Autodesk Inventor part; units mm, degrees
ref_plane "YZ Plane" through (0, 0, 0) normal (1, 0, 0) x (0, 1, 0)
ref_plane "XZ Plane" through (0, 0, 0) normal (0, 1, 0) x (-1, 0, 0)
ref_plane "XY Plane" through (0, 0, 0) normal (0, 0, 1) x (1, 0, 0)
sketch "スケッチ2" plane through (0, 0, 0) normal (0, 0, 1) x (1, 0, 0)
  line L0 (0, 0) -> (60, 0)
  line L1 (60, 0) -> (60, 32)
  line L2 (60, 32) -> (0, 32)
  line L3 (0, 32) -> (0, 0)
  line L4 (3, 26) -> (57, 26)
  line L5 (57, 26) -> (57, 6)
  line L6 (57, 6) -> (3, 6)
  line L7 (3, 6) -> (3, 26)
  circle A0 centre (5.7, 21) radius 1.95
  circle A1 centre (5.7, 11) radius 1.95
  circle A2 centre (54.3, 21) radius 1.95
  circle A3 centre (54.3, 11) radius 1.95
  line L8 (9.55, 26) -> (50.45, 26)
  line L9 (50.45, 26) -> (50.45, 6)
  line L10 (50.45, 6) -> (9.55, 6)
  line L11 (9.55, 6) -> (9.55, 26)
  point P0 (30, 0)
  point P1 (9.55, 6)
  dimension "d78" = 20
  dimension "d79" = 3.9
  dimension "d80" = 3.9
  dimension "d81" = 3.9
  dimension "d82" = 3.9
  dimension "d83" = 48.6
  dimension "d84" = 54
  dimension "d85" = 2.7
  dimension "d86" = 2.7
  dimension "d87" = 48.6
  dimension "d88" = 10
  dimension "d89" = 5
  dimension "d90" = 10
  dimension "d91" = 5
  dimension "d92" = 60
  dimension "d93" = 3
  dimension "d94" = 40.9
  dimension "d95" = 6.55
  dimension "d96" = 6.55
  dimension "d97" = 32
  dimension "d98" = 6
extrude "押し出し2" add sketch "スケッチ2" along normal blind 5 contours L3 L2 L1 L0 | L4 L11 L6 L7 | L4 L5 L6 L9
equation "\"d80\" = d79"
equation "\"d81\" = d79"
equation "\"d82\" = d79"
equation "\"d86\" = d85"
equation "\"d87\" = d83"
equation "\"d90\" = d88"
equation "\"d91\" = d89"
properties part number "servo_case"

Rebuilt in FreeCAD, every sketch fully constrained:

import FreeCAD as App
import Part
import Sketcher

doc = App.newDocument("Part")
body = doc.addObject("PartDesign::Body", "Body")

sketch1 = body.newObject("Sketcher::SketchObject", "Sketch")
sketch1.AttachmentSupport = (doc.getObject("XY_Plane"), [""])
sketch1.MapMode = "FlatFace"
sketch1.addGeometry([
    Part.LineSegment(App.Vector(0, 32, 0), App.Vector(0, 0, 0)),
    Part.LineSegment(App.Vector(0, 0, 0), App.Vector(60, 0, 0)),
    Part.LineSegment(App.Vector(60, 0, 0), App.Vector(60, 32, 0)),
    Part.LineSegment(App.Vector(60, 32, 0), App.Vector(0, 32, 0)),
    Part.LineSegment(App.Vector(50.45, 6, 0), App.Vector(9.55, 6, 0)),
    Part.LineSegment(App.Vector(9.55, 6, 0), App.Vector(9.55, 26, 0)),
    Part.LineSegment(App.Vector(9.55, 26, 0), App.Vector(50.45, 26, 0)),
    Part.LineSegment(App.Vector(50.45, 26, 0), App.Vector(50.45, 6, 0)),
    Part.Circle(App.Vector(5.7, 21, 0), App.Vector(0, 0, 1), 1.95),
    Part.Circle(App.Vector(5.7, 11, 0), App.Vector(0, 0, 1), 1.95),
    Part.Circle(App.Vector(54.3, 11, 0), App.Vector(0, 0, 1), 1.95),
    Part.Circle(App.Vector(54.3, 21, 0), App.Vector(0, 0, 1), 1.95),
], False)
sketch1.addConstraint([
    Sketcher.Constraint("Coincident", 0, 2, 1, 1),
    Sketcher.Constraint("Coincident", 1, 2, 2, 1),
    Sketcher.Constraint("Coincident", 2, 2, 3, 1),
    Sketcher.Constraint("Coincident", 3, 2, 0, 1),
    Sketcher.Constraint("Coincident", 4, 2, 5, 1),
    Sketcher.Constraint("Coincident", 5, 2, 6, 1),
    Sketcher.Constraint("Coincident", 6, 2, 7, 1),
    Sketcher.Constraint("Coincident", 7, 2, 4, 1),
    Sketcher.Constraint("Vertical", 0),
    Sketcher.Constraint("Horizontal", 1),
    Sketcher.Constraint("Vertical", 2),
    Sketcher.Constraint("Horizontal", 3),
    Sketcher.Constraint("Horizontal", 4),
    Sketcher.Constraint("Vertical", 5),
    Sketcher.Constraint("Horizontal", 6),
    Sketcher.Constraint("Vertical", 7),
    Sketcher.Constraint("Coincident", 0, 2, -1, 1),
    Sketcher.Constraint("Equal", 8, 9),
    Sketcher.Constraint("Equal", 9, 10),
    Sketcher.Constraint("Equal", 10, 11),
    Sketcher.Constraint("Horizontal", 9, 3, 10, 3),
    Sketcher.Constraint("Horizontal", 8, 3, 11, 3),
    Sketcher.Constraint("Vertical", 8, 3, 9, 3),
    Sketcher.Constraint("Vertical", 10, 3, 11, 3),
    Sketcher.Constraint("Diameter", 8, 3.9),
    Sketcher.Constraint("DistanceX", 1, 1, 1, 2, 60.0),
    Sketcher.Constraint("DistanceY", 0, 2, 0, 1, 32.0),
    Sketcher.Constraint("DistanceY", 5, 1, 5, 2, 20.0),
    Sketcher.Constraint("DistanceX", 4, 2, 4, 1, 40.9),
    Sketcher.Constraint("DistanceY", -1, 1, 4, 2, 6.0),
    Sketcher.Constraint("DistanceY", 9, 3, 8, 3, 10.0),
    Sketcher.Constraint("DistanceY", 4, 2, 9, 3, 5.0),
    Sketcher.Constraint("DistanceX", 9, 3, 10, 3, 48.6),
    Sketcher.Constraint("DistanceX", -1, 1, 8, 3, 5.7),
    Sketcher.Constraint("DistanceX", -1, 1, 4, 2, 9.55),
])
pad1 = body.newObject("PartDesign::Pad", "Pad")
pad1.Profile = sketch1
pad1.Length = 5

doc.recompute()
